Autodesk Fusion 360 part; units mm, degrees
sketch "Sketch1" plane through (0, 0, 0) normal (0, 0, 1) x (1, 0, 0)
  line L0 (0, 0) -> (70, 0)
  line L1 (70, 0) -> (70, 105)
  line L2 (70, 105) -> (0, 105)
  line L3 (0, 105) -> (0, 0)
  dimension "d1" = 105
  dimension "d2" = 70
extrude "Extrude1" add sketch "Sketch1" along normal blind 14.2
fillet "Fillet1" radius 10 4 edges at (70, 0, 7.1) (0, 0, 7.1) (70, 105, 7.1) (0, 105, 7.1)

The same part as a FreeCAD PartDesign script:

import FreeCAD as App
import Part
import Sketcher

V = App.Vector


def edges_at(feature, points):
    """Names of the edges that pass closest to the given points."""
    edges = feature.Shape.Edges
    near = lambda p: min(range(len(edges)), key=lambda i: edges[i].distToShape(Part.Vertex(*p))[0])
    return sorted({f"Edge{near(p) + 1}" for p in points})


def add_polygon(sketch, points):
    """Adds a closed chain of lines whose ends are joined by coincident constraints."""
    first, n = sketch.GeometryCount, len(points)
    for a, b in zip(points, points[1:] + points[:1]):
        sketch.addGeometry(Part.LineSegment(App.Vector(*a, 0), App.Vector(*b, 0)), False)
    for i in range(n):
        sketch.addConstraint(Sketcher.Constraint("Coincident", first + i, 2, first + (i + 1) % n, 1))

doc = App.newDocument("Part")
body = doc.addObject("PartDesign::Body", "Body")

# Sketch on XY plane
sketch1 = body.newObject("Sketcher::SketchObject", "Sketch")
sketch1.AttachmentSupport = (doc.getObject("XY_Plane"), [""])
sketch1.MapMode = "FlatFace"
add_polygon(sketch1, [(0, 105), (0, 0), (70, 0), (70, 105)])  # lines 0-3
sketch1.addConstraint([
    Sketcher.Constraint("Vertical", 0),
    Sketcher.Constraint("Horizontal", 1),
    Sketcher.Constraint("Vertical", 2),
    Sketcher.Constraint("Horizontal", 3),
    Sketcher.Constraint("Coincident", 0, 2, -1, 1),
    Sketcher.Constraint("DistanceX", 1, 1, 1, 2, 70.0),
    Sketcher.Constraint("DistanceY", 0, 2, 0, 1, 105.0),
])
pad1 = body.newObject("PartDesign::Pad", "Pad")
pad1.Profile = sketch1
pad1.Length = 14.2
doc.recompute()

fillet = body.newObject("PartDesign::Fillet", "Fillet")
fillet.Base = (pad1, edges_at(pad1, [
    (70, 0, 7.1),
    (0, 0, 7.1),
    (70, 105, 7.1),
    (0, 105, 7.1),
]))
fillet.Radius = 10

doc.recompute()
